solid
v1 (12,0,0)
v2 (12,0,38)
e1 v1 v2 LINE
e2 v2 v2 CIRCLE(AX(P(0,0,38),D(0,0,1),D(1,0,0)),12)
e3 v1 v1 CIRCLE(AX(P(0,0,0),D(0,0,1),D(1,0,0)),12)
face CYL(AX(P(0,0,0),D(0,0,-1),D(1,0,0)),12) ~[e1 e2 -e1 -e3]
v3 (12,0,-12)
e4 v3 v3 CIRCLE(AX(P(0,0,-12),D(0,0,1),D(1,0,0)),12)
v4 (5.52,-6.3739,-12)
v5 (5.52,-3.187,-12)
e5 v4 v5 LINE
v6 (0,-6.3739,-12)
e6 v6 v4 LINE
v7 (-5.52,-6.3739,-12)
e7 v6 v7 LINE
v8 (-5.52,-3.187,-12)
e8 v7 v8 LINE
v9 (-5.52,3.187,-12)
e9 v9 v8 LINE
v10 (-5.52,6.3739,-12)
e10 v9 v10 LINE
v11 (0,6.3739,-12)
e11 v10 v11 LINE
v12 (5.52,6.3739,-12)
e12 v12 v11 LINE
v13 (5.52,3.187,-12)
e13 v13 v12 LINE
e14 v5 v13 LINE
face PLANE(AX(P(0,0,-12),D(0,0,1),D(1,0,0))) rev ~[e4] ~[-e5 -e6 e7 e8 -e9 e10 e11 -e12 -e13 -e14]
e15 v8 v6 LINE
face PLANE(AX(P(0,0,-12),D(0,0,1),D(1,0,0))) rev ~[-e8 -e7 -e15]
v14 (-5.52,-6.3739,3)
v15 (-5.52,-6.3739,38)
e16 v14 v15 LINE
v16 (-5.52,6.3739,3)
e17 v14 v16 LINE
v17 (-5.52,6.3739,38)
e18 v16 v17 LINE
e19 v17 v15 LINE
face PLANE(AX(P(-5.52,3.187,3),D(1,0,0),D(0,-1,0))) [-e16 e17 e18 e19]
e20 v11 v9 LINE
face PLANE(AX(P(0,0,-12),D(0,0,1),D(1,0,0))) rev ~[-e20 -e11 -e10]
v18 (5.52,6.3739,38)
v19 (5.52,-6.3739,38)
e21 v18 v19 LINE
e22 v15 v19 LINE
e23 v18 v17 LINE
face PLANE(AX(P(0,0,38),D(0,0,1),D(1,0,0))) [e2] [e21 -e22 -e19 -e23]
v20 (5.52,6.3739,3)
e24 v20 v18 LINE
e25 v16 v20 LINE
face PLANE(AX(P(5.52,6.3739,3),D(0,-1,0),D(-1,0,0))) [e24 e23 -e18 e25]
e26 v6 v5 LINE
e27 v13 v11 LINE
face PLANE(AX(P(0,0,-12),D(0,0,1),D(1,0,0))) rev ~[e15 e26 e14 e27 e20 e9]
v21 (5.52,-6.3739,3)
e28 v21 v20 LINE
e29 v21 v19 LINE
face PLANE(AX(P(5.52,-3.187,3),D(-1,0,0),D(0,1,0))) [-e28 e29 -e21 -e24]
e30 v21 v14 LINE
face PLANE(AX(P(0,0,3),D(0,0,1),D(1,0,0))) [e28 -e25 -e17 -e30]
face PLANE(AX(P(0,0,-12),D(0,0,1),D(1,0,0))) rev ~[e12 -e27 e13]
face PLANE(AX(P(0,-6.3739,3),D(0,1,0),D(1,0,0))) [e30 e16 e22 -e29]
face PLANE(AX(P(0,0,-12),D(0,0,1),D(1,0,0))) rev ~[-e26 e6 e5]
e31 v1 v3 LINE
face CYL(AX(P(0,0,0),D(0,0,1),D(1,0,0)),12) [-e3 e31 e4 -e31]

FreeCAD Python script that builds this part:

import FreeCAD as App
import Part
import Sketcher

V = App.Vector


def add_polygon(sketch, points):
    """Adds a closed chain of lines whose ends are joined by coincident constraints."""
    first, n = sketch.GeometryCount, len(points)
    for a, b in zip(points, points[1:] + points[:1]):
        sketch.addGeometry(Part.LineSegment(App.Vector(*a, 0), App.Vector(*b, 0)), False)
    for i in range(n):
        sketch.addConstraint(Sketcher.Constraint("Coincident", first + i, 2, first + (i + 1) % n, 1))

doc = App.newDocument("Part")
body = doc.addObject("PartDesign::Body", "Body")

# Sketch on XY plane
sketch1 = body.newObject("Sketcher::SketchObject", "Sketch")
sketch1.AttachmentSupport = (doc.getObject("XY_Plane"), [""])
sketch1.MapMode = "FlatFace"
sketch1.addGeometry(Part.Circle(V(0, 0, 0), V(0, 0, 1), 12), False)
sketch1.addConstraint([
    Sketcher.Constraint("Coincident", 0, 3, -1, 1),
    Sketcher.Constraint("Diameter", 0, 24.0),
])
pad1 = body.newObject("PartDesign::Pad", "Pad")
pad1.Profile = sketch1
pad1.Type = "TwoLengths"
pad1.Length = 38
pad1.Length2 = 12

# Sketch on XY plane
sketch2 = body.newObject("Sketcher::SketchObject", "Sketch001")
sketch2.AttachmentSupport = (doc.getObject("XY_Plane"), [""])
sketch2.MapMode = "FlatFace"
sketch2.AttachmentOffset = App.Placement(V(0, 0, 3), App.Rotation())
add_polygon(sketch2, [(6, 6), (-6, 6), (-6, -6), (6, -6)])  # lines 0-3
sketch2.addConstraint([
    Sketcher.Constraint("Horizontal", 0),
    Sketcher.Constraint("Vertical", 1),
    Sketcher.Constraint("Horizontal", 2),
    Sketcher.Constraint("Vertical", 3),
    Sketcher.Constraint("Symmetric", 0, 2, 2, 2, -1, 1),
    Sketcher.Constraint("DistanceX", 0, 2, -1, 1, 5.52),
    Sketcher.Constraint("DistanceY", 1, 2, 1, 1, 12.7478),
])
pocket1 = body.newObject("PartDesign::Pocket", "Pocket")
pocket1.Profile = sketch2
pocket1.Length = 35
pocket1.Reversed = True

doc.recompute()
